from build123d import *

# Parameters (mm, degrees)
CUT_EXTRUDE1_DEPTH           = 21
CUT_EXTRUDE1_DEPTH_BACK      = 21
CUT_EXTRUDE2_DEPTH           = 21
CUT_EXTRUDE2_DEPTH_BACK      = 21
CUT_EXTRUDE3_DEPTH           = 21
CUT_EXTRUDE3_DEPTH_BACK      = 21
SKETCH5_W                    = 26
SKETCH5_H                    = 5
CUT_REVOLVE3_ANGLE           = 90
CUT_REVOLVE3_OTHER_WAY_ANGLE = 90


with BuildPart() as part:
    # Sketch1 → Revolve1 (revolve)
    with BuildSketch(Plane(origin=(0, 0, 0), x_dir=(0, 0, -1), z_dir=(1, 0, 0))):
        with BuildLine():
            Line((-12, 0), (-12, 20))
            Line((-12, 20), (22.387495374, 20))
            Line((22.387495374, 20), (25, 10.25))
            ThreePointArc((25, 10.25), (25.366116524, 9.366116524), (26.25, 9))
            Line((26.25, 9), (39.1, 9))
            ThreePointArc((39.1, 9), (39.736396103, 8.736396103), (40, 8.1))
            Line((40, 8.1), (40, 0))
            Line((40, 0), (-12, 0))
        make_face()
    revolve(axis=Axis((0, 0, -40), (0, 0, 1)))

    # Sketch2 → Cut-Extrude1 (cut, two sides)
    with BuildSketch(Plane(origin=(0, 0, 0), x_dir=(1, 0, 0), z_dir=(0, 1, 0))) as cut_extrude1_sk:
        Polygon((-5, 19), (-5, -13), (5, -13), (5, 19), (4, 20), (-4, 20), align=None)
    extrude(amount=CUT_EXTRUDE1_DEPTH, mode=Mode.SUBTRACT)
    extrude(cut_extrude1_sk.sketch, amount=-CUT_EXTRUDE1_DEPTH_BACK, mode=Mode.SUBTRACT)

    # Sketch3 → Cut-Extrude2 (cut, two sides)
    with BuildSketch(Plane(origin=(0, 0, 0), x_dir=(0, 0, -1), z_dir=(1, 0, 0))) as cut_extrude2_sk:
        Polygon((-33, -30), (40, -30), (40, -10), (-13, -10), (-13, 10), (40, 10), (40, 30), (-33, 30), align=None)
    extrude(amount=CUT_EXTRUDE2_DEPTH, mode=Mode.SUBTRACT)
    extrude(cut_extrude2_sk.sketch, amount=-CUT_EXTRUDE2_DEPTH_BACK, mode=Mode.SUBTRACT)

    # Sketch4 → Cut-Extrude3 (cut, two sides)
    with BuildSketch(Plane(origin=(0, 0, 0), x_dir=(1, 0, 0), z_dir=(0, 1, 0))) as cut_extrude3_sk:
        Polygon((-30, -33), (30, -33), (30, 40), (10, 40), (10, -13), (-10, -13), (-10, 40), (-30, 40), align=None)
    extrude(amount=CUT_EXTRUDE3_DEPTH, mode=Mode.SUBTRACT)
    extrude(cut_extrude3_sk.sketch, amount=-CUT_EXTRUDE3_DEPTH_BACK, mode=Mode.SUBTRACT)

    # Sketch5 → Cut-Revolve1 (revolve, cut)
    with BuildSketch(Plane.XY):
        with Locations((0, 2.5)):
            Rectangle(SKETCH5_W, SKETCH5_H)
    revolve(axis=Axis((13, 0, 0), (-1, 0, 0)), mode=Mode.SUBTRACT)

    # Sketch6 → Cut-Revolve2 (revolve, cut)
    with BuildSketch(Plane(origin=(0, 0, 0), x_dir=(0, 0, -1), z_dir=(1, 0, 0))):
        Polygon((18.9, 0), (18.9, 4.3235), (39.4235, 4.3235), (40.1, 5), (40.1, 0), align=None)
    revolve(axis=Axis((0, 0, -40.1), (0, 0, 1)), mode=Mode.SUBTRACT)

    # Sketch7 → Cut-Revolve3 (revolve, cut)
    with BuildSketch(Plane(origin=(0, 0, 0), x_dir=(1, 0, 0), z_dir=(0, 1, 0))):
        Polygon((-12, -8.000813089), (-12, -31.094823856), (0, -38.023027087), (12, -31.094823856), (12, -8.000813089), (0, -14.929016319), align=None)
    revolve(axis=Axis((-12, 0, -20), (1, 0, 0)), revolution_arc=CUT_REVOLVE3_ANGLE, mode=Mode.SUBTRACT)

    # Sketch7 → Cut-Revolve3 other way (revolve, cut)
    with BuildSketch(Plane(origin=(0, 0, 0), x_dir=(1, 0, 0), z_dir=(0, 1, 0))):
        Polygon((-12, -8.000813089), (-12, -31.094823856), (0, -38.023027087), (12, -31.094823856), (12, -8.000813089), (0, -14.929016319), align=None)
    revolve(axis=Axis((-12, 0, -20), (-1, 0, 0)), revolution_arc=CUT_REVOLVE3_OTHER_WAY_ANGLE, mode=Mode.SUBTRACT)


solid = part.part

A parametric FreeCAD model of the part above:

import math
import FreeCAD as App
import Part
import Sketcher

V = App.Vector
Q = App.Units.Quantity

doc = App.newDocument("Part")
body = doc.addObject("PartDesign::Body", "Body")

sketch1 = body.newObject("Sketcher::SketchObject", "Sketch")
sketch1.AttachmentSupport = (doc.getObject("YZ_Plane"), [""])
sketch1.MapMode = "FlatFace"
sketch1.addGeometry(Part.LineSegment(V(20, 12, 0), V(0, 12, 0)), False)
sketch1.addGeometry(Part.LineSegment(V(0, 12, 0), V(0, -40, 0)), False)
sketch1.addGeometry(Part.LineSegment(V(0, -40, 0), V(8.1, -40, 0)), False)
sketch1.addGeometry(Part.ArcOfCircle(Part.Circle(V(8.1, -39.1, 0), V(0, 0, 1), 0.9), math.radians(-90), math.radians(0)), False)
sketch1.addGeometry(Part.LineSegment(V(9, -39.1, 0), V(9, -26.2, 0)), False)
sketch1.addGeometry(Part.ArcOfCircle(Part.Circle(V(10.3, -26.3, 0), V(0, 0, 1), 1.3), math.radians(90), math.radians(180)), False)
sketch1.addGeometry(Part.LineSegment(V(10.2, -25, 0), V(20, -22.4, 0)), False)
sketch1.addGeometry(Part.LineSegment(V(20, -22.4, 0), V(20, 12, 0)), False)
sketch1.addConstraint(Sketcher.Constraint("Coincident", 0, 2, 1, 1))
sketch1.addConstraint(Sketcher.Constraint("Coincident", 1, 2, 2, 1))
sketch1.addConstraint(Sketcher.Constraint("Tangent", 2, 2, 3, 1))
sketch1.addConstraint(Sketcher.Constraint("Tangent", 3, 2, 4, 1))
sketch1.addConstraint(Sketcher.Constraint("Tangent", 4, 2, 5, 2))
sketch1.addConstraint(Sketcher.Constraint("Coincident", 5, 1, 6, 1))
sketch1.addConstraint(Sketcher.Constraint("Coincident", 6, 2, 7, 1))
sketch1.addConstraint(Sketcher.Constraint("Coincident", 7, 2, 0, 1))
sketch1.addConstraint(Sketcher.Constraint("Horizontal", 0))
sketch1.addConstraint(Sketcher.Constraint("Vertical", 1))
sketch1.addConstraint(Sketcher.Constraint("Horizontal", 2))
sketch1.addConstraint(Sketcher.Constraint("Vertical", 4))
sketch1.addConstraint(Sketcher.Constraint("Vertical", 7))
sketch1.addConstraint(Sketcher.Constraint("PointOnObject", 0, 2, -2))
sketch1.addConstraint(Sketcher.Constraint("Radius", 3, 0.9))
sketch1.addConstraint(Sketcher.Constraint("DistanceX", 0, 2, 0, 1, 20.0))
sketch1.addConstraint(Sketcher.Constraint("DistanceY", 1, 2, 1, 1, 52.0))
sketch1.addConstraint(Sketcher.Constraint("Angle", 6, Q("15 deg")))
sketch1.addConstraint(Sketcher.Constraint("Radius", 5, 1.25))
sketch1.addConstraint(Sketcher.Constraint("DistanceX", 2, 1, 2, 2, 8.1))
sketch1.addConstraint(Sketcher.Constraint("DistanceY", -1, 1, 0, 2, 12.0))
sketch1.addConstraint(Sketcher.Constraint("DistanceY", 5, 1, -1, 1, 25.0))
sketch1.addConstraint(Sketcher.Constraint("DistanceX", -1, 1, 5, 1, 10.25))
revolution = body.newObject("PartDesign::Revolution", "Revolution")
revolution.Profile = sketch1
revolution.ReferenceAxis = (sketch1, ["V_Axis"])
revolution.Angle = 360

sketch2 = body.newObject("Sketcher::SketchObject", "Sketch001")
sketch2.AttachmentSupport = (doc.getObject("XZ_Plane"), [""])
sketch2.MapMode = "FlatFace"
sketch2.addGeometry(Part.LineSegment(V(-5, -19, 0), V(-5, 13, 0)), False)
sketch2.addGeometry(Part.LineSegment(V(-5, 13, 0), V(5, 13, 0)), False)
sketch2.addGeometry(Part.LineSegment(V(5, 13, 0), V(5, -19, 0)), False)
sketch2.addGeometry(Part.LineSegment(V(5, -19, 0), V(4, -20, 0)), False)
sketch2.addGeometry(Part.LineSegment(V(4, -20, 0), V(-4, -20, 0)), False)
sketch2.addGeometry(Part.LineSegment(V(-4, -20, 0), V(-5, -19, 0)), False)
sketch2.addConstraint(Sketcher.Constraint("Coincident", 0, 2, 1, 1))
sketch2.addConstraint(Sketcher.Constraint("Coincident", 1, 2, 2, 1))
sketch2.addConstraint(Sketcher.Constraint("Coincident", 2, 2, 3, 1))
sketch2.addConstraint(Sketcher.Constraint("Coincident", 3, 2, 4, 1))
sketch2.addConstraint(Sketcher.Constraint("Coincident", 4, 2, 5, 1))
sketch2.addConstraint(Sketcher.Constraint("Coincident", 5, 2, 0, 1))
sketch2.addConstraint(Sketcher.Constraint("Vertical", 0))
sketch2.addConstraint(Sketcher.Constraint("Horizontal", 1))
sketch2.addConstraint(Sketcher.Constraint("Vertical", 2))
sketch2.addConstraint(Sketcher.Constraint("Horizontal", 4))
sketch2.addConstraint(Sketcher.Constraint("Symmetric", 2, 2, 5, 2, -2))
sketch2.addConstraint(Sketcher.Constraint("Perpendicular", 3, 5))
sketch2.addConstraint(Sketcher.Constraint("Equal", 3, 5))
sketch2.addConstraint(Sketcher.Constraint("DistanceX", 1, 1, 1, 2, 10.0))
sketch2.addConstraint(Sketcher.Constraint("DistanceX", 4, 2, 4, 1, 8.0))
sketch2.addConstraint(Sketcher.Constraint("DistanceY", 0, 1, 0, 2, 32.0))
sketch2.addConstraint(Sketcher.Constraint("DistanceY", -1, 1, 0, 2, 13.0))
pocket1 = body.newObject("PartDesign::Pocket", "Pocket")
pocket1.Profile = sketch2
pocket1.Type = "ThroughAll"
pocket1.Midplane = True

sketch3 = body.newObject("Sketcher::SketchObject", "Sketch002")
sketch3.AttachmentSupport = (doc.getObject("YZ_Plane"), [""])
sketch3.MapMode = "FlatFace"
sketch3.addGeometry(Part.LineSegment(V(-30, 33, 0), V(-30, -40, 0)), False)
sketch3.addGeometry(Part.LineSegment(V(-30, -40, 0), V(-10, -40, 0)), False)
sketch3.addGeometry(Part.LineSegment(V(-10, -40, 0), V(-10, 13, 0)), False)
sketch3.addGeometry(Part.LineSegment(V(-10, 13, 0), V(10, 13, 0)), False)
sketch3.addGeometry(Part.LineSegment(V(10, 13, 0), V(10, -40, 0)), False)
sketch3.addGeometry(Part.LineSegment(V(10, -40, 0), V(30, -40, 0)), False)
sketch3.addGeometry(Part.LineSegment(V(30, -40, 0), V(30, 33, 0)), False)
sketch3.addGeometry(Part.LineSegment(V(30, 33, 0), V(-30, 33, 0)), False)
sketch3.addConstraint(Sketcher.Constraint("Coincident", 0, 2, 1, 1))
sketch3.addConstraint(Sketcher.Constraint("Coincident", 1, 2, 2, 1))
sketch3.addConstraint(Sketcher.Constraint("Coincident", 2, 2, 3, 1))
sketch3.addConstraint(Sketcher.Constraint("Coincident", 3, 2, 4, 1))
sketch3.addConstraint(Sketcher.Constraint("Coincident", 4, 2, 5, 1))
sketch3.addConstraint(Sketcher.Constraint("Coincident", 5, 2, 6, 1))
sketch3.addConstraint(Sketcher.Constraint("Coincident", 6, 2, 7, 1))
sketch3.addConstraint(Sketcher.Constraint("Coincident", 7, 2, 0, 1))
sketch3.addConstraint(Sketcher.Constraint("Vertical", 0))
sketch3.addConstraint(Sketcher.Constraint("Horizontal", 1))
sketch3.addConstraint(Sketcher.Constraint("Vertical", 2))
sketch3.addConstraint(Sketcher.Constraint("Horizontal", 3))
sketch3.addConstraint(Sketcher.Constraint("Vertical", 4))
sketch3.addConstraint(Sketcher.Constraint("Horizontal", 5))
sketch3.addConstraint(Sketcher.Constraint("Vertical", 6))
sketch3.addConstraint(Sketcher.Constraint("Horizontal", 7))
sketch3.addConstraint(Sketcher.Constraint("Symmetric", 1, 2, 4, 2, -2))
sketch3.addConstraint(Sketcher.Constraint("Equal", 1, 3))
sketch3.addConstraint(Sketcher.Constraint("Equal", 3, 5))
sketch3.addConstraint(Sketcher.Constraint("DistanceX", 1, 1, 1, 2, 20.0))
sketch3.addConstraint(Sketcher.Constraint("DistanceY", 0, 2, 0, 1, 73.0))
sketch3.addConstraint(Sketcher.Constraint("DistanceY", 2, 1, 2, 2, 53.0))
sketch3.addConstraint(Sketcher.Constraint("DistanceY", 0, 2, -1, 1, 40.0))
pocket2 = body.newObject("PartDesign::Pocket", "Pocket001")
pocket2.Profile = sketch3
pocket2.Type = "ThroughAll"
pocket2.Midplane = True

sketch4 = body.newObject("Sketcher::SketchObject", "Sketch003")
sketch4.AttachmentSupport = (doc.getObject("XZ_Plane"), [""])
sketch4.MapMode = "FlatFace"
sketch4.addGeometry(Part.LineSegment(V(-30, 33, 0), V(30, 33, 0)), False)
sketch4.addGeometry(Part.LineSegment(V(30, 33, 0), V(30, -40, 0)), False)
sketch4.addGeometry(Part.LineSegment(V(30, -40, 0), V(10, -40, 0)), False)
sketch4.addGeometry(Part.LineSegment(V(10, -40, 0), V(10, 13, 0)), False)
sketch4.addGeometry(Part.LineSegment(V(10, 13, 0), V(-10, 13, 0)), False)
sketch4.addGeometry(Part.LineSegment(V(-10, 13, 0), V(-10, -40, 0)), False)
sketch4.addGeometry(Part.LineSegment(V(-10, -40, 0), V(-30, -40, 0)), False)
sketch4.addGeometry(Part.LineSegment(V(-30, -40, 0), V(-30, 33, 0)), False)
sketch4.addConstraint(Sketcher.Constraint("Coincident", 0, 2, 1, 1))
sketch4.addConstraint(Sketcher.Constraint("Coincident", 1, 2, 2, 1))
sketch4.addConstraint(Sketcher.Constraint("Coincident", 2, 2, 3, 1))
sketch4.addConstraint(Sketcher.Constraint("Coincident", 3, 2, 4, 1))
sketch4.addConstraint(Sketcher.Constraint("Coincident", 4, 2, 5, 1))
sketch4.addConstraint(Sketcher.Constraint("Coincident", 5, 2, 6, 1))
sketch4.addConstraint(Sketcher.Constraint("Coincident", 6, 2, 7, 1))
sketch4.addConstraint(Sketcher.Constraint("Coincident", 7, 2, 0, 1))
sketch4.addConstraint(Sketcher.Constraint("Horizontal", 0))
sketch4.addConstraint(Sketcher.Constraint("Vertical", 1))
sketch4.addConstraint(Sketcher.Constraint("Horizontal", 2))
sketch4.addConstraint(Sketcher.Constraint("Vertical", 3))
sketch4.addConstraint(Sketcher.Constraint("Horizontal", 4))
sketch4.addConstraint(Sketcher.Constraint("Vertical", 5))
sketch4.addConstraint(Sketcher.Constraint("Horizontal", 6))
sketch4.addConstraint(Sketcher.Constraint("Vertical", 7))
sketch4.addConstraint(Sketcher.Constraint("Symmetric", 2, 2, 5, 2, -2))
sketch4.addConstraint(Sketcher.Constraint("Equal", 2, 4))
sketch4.addConstraint(Sketcher.Constraint("Equal", 4, 6))
sketch4.addConstraint(Sketcher.Constraint("DistanceX", 0, 1, 0, 2, 60.0))
sketch4.addConstraint(Sketcher.Constraint("DistanceY", 1, 2, 1, 1, 73.0))
sketch4.addConstraint(Sketcher.Constraint("DistanceY", 3, 1, 3, 2, 53.0))
sketch4.addConstraint(Sketcher.Constraint("DistanceY", -1, 1, 0, 2, 33.0))
pocket3 = body.newObject("PartDesign::Pocket", "Pocket002")
pocket3.Profile = sketch4
pocket3.Type = "ThroughAll"
pocket3.Midplane = True

sketch5 = body.newObject("Sketcher::SketchObject", "Sketch004")
sketch5.AttachmentSupport = (doc.getObject("XY_Plane"), [""])
sketch5.MapMode = "FlatFace"
sketch5.addGeometry(Part.LineSegment(V(-13, 5, 0), V(-13, 0, 0)), False)
sketch5.addGeometry(Part.LineSegment(V(-13, 0, 0), V(13, 0, 0)), False)
sketch5.addGeometry(Part.LineSegment(V(13, 0, 0), V(13, 5, 0)), False)
sketch5.addGeometry(Part.LineSegment(V(13, 5, 0), V(-13, 5, 0)), False)
sketch5.addConstraint(Sketcher.Constraint("Coincident", 0, 2, 1, 1))
sketch5.addConstraint(Sketcher.Constraint("Coincident", 1, 2, 2, 1))
sketch5.addConstraint(Sketcher.Constraint("Coincident", 2, 2, 3, 1))
sketch5.addConstraint(Sketcher.Constraint("Coincident", 3, 2, 0, 1))
sketch5.addConstraint(Sketcher.Constraint("Vertical", 0))
sketch5.addConstraint(Sketcher.Constraint("Horizontal", 1))
sketch5.addConstraint(Sketcher.Constraint("Vertical", 2))
sketch5.addConstraint(Sketcher.Constraint("Horizontal", 3))
sketch5.addConstraint(Sketcher.Constraint("Symmetric", 0, 2, 1, 2, -1, 1))
sketch5.addConstraint(Sketcher.Constraint("DistanceX", 1, 1, 1, 2, 26.0))
sketch5.addConstraint(Sketcher.Constraint("DistanceY", 0, 2, 0, 1, 5.0))
groove = body.newObject("PartDesign::Groove", "Groove")
groove.Profile = sketch5
groove.ReferenceAxis = (sketch5, ["H_Axis"])
groove.Angle = 360

sketch6 = body.newObject("Sketcher::SketchObject", "Sketch005")
sketch6.AttachmentSupport = (doc.getObject("YZ_Plane"), [""])
sketch6.MapMode = "FlatFace"
sketch6.addGeometry(Part.LineSegment(V(4.3, -18.9, 0), V(0, -18.9, 0)), False)
sketch6.addGeometry(Part.LineSegment(V(0, -18.9, 0), V(0, -40.1, 0)), False)
sketch6.addGeometry(Part.LineSegment(V(0, -40.1, 0), V(5, -40.1, 0)), False)
sketch6.addGeometry(Part.LineSegment(V(5, -40.1, 0), V(4.3, -39.4, 0)), False)
sketch6.addGeometry(Part.LineSegment(V(4.3, -39.4, 0), V(4.3, -18.9, 0)), False)
sketch6.addConstraint(Sketcher.Constraint("Coincident", 0, 2, 1, 1))
sketch6.addConstraint(Sketcher.Constraint("Coincident", 1, 2, 2, 1))
sketch6.addConstraint(Sketcher.Constraint("Coincident", 2, 2, 3, 1))
sketch6.addConstraint(Sketcher.Constraint("Coincident", 3, 2, 4, 1))
sketch6.addConstraint(Sketcher.Constraint("Coincident", 4, 2, 0, 1))
sketch6.addConstraint(Sketcher.Constraint("Horizontal", 0))
sketch6.addConstraint(Sketcher.Constraint("Vertical", 1))
sketch6.addConstraint(Sketcher.Constraint("Horizontal", 2))
sketch6.addConstraint(Sketcher.Constraint("Vertical", 4))
sketch6.addConstraint(Sketcher.Constraint("PointOnObject", 0, 2, -2))
sketch6.addConstraint(Sketcher.Constraint("DistanceX", 2, 1, 2, 2, 5.0))
sketch6.addConstraint(Sketcher.Constraint("Angle", 3, Q("135 deg")))
sketch6.addConstraint(Sketcher.Constraint("DistanceY", 1, 2, 1, 1, 21.2))
sketch6.addConstraint(Sketcher.Constraint("DistanceY", 0, 2, -1, 1, 18.9))
sketch6.addConstraint(Sketcher.Constraint("DistanceX", 0, 2, 0, 1, 4.3235))
groove2 = body.newObject("PartDesign::Groove", "Groove001")
groove2.Profile = sketch6
groove2.ReferenceAxis = (sketch6, ["V_Axis"])
groove2.Angle = 360

sketch7 = body.newObject("Sketcher::SketchObject", "Sketch006")
sketch7.AttachmentSupport = (doc.getObject("XZ_Plane"), [""])
sketch7.MapMode = "FlatFace"
sketch7.addGeometry(Part.LineSegment(V(-12, 8, 0), V(-12, 31, 0)), False)
sketch7.addGeometry(Part.LineSegment(V(-12, 31, 0), V(0, 38, 0)), False)
sketch7.addGeometry(Part.LineSegment(V(0, 38, 0), V(12, 31, 0)), False)
sketch7.addGeometry(Part.LineSegment(V(12, 31, 0), V(12, 8, 0)), False)
sketch7.addGeometry(Part.LineSegment(V(12, 8, 0), V(0, 15, 0)), False)
sketch7.addGeometry(Part.LineSegment(V(0, 15, 0), V(-12, 8, 0)), False)
sketch7.addGeometry(Part.LineSegment(V(-12, -20, 0), V(12, -20, 0)), True)
sketch7.addConstraint(Sketcher.Constraint("Coincident", 0, 2, 1, 1))
sketch7.addConstraint(Sketcher.Constraint("Coincident", 1, 2, 2, 1))
sketch7.addConstraint(Sketcher.Constraint("Coincident", 2, 2, 3, 1))
sketch7.addConstraint(Sketcher.Constraint("Coincident", 3, 2, 4, 1))
sketch7.addConstraint(Sketcher.Constraint("Coincident", 4, 2, 5, 1))
sketch7.addConstraint(Sketcher.Constraint("Coincident", 5, 2, 0, 1))
sketch7.addConstraint(Sketcher.Constraint("Vertical", 0))
sketch7.addConstraint(Sketcher.Constraint("Vertical", 3))
sketch7.addConstraint(Sketcher.Constraint("Horizontal", 6))
sketch7.addConstraint(Sketcher.Constraint("Symmetric", 0, 2, 2, 2, -2))
sketch7.addConstraint(Sketcher.Constraint("PointOnObject", 1, 2, -2))
sketch7.addConstraint(Sketcher.Constraint("PointOnObject", 4, 2, -2))
sketch7.addConstraint(Sketcher.Constraint("Parallel", 2, 4))
sketch7.addConstraint(Sketcher.Constraint("Parallel", 1, 5))
sketch7.addConstraint(Sketcher.Constraint("Vertical", 5, 2, 6, 1))
sketch7.addConstraint(Sketcher.Constraint("Vertical", 3, 2, 6, 2))
sketch7.addConstraint(Sketcher.Constraint("DistanceX", 6, 1, 6, 2, 24.0))
sketch7.addConstraint(Sketcher.Constraint("Angle", 1, Q("30 deg")))
sketch7.addConstraint(Sketcher.Constraint("DistanceY", 6, 1, -1, 1, 20.0))
sketch7.addConstraint(Sketcher.Constraint("DistanceY", 0, 1, 0, 2, 23.094011))
sketch7.addConstraint(Sketcher.Constraint("DistanceY", -1, 1, 0, 2, 31.094824))
groove3 = body.newObject("PartDesign::Groove", "Groove002")
groove3.Profile = sketch7
groove3.ReferenceAxis = (sketch7, ["Axis0"])
groove3.Angle = 90

sketch8 = body.newObject("Sketcher::SketchObject", "Sketch007")
sketch8.AttachmentSupport = (doc.getObject("XZ_Plane"), [""])
sketch8.MapMode = "FlatFace"
sketch8.addGeometry(Part.LineSegment(V(-12, 8, 0), V(-12, 31, 0)), False)
sketch8.addGeometry(Part.LineSegment(V(-12, 31, 0), V(0, 38, 0)), False)
sketch8.addGeometry(Part.LineSegment(V(0, 38, 0), V(12, 31, 0)), False)
sketch8.addGeometry(Part.LineSegment(V(12, 31, 0), V(12, 8, 0)), False)
sketch8.addGeometry(Part.LineSegment(V(12, 8, 0), V(0, 15, 0)), False)
sketch8.addGeometry(Part.LineSegment(V(0, 15, 0), V(-12, 8, 0)), False)
sketch8.addGeometry(Part.LineSegment(V(12, -20, 0), V(-12, -20, 0)), True)
sketch8.addConstraint(Sketcher.Constraint("Coincident", 0, 2, 1, 1))
sketch8.addConstraint(Sketcher.Constraint("Coincident", 1, 2, 2, 1))
sketch8.addConstraint(Sketcher.Constraint("Coincident", 2, 2, 3, 1))
sketch8.addConstraint(Sketcher.Constraint("Coincident", 3, 2, 4, 1))
sketch8.addConstraint(Sketcher.Constraint("Coincident", 4, 2, 5, 1))
sketch8.addConstraint(Sketcher.Constraint("Coincident", 5, 2, 0, 1))
sketch8.addConstraint(Sketcher.Constraint("Vertical", 0))
sketch8.addConstraint(Sketcher.Constraint("Vertical", 3))
sketch8.addConstraint(Sketcher.Constraint("Horizontal", 6))
sketch8.addConstraint(Sketcher.Constraint("Symmetric", 0, 2, 2, 2, -2))
sketch8.addConstraint(Sketcher.Constraint("PointOnObject", 1, 2, -2))
sketch8.addConstraint(Sketcher.Constraint("PointOnObject", 4, 2, -2))
sketch8.addConstraint(Sketcher.Constraint("Parallel", 2, 4))
sketch8.addConstraint(Sketcher.Constraint("Parallel", 1, 5))
sketch8.addConstraint(Sketcher.Constraint("Vertical", 3, 2, 6, 1))
sketch8.addConstraint(Sketcher.Constraint("Vertical", 5, 2, 6, 2))
sketch8.addConstraint(Sketcher.Constraint("DistanceX", 6, 2, 6, 1, 24.0))
sketch8.addConstraint(Sketcher.Constraint("Angle", 1, Q("30 deg")))
sketch8.addConstraint(Sketcher.Constraint("DistanceY", 6, 1, -1, 1, 20.0))
sketch8.addConstraint(Sketcher.Constraint("DistanceY", 0, 1, 0, 2, 23.094011))
sketch8.addConstraint(Sketcher.Constraint("DistanceY", -1, 1, 0, 2, 31.094824))
groove4 = body.newObject("PartDesign::Groove", "Groove003")
groove4.Profile = sketch8
groove4.ReferenceAxis = (sketch8, ["Axis0"])
groove4.Angle = 90

doc.recompute()
